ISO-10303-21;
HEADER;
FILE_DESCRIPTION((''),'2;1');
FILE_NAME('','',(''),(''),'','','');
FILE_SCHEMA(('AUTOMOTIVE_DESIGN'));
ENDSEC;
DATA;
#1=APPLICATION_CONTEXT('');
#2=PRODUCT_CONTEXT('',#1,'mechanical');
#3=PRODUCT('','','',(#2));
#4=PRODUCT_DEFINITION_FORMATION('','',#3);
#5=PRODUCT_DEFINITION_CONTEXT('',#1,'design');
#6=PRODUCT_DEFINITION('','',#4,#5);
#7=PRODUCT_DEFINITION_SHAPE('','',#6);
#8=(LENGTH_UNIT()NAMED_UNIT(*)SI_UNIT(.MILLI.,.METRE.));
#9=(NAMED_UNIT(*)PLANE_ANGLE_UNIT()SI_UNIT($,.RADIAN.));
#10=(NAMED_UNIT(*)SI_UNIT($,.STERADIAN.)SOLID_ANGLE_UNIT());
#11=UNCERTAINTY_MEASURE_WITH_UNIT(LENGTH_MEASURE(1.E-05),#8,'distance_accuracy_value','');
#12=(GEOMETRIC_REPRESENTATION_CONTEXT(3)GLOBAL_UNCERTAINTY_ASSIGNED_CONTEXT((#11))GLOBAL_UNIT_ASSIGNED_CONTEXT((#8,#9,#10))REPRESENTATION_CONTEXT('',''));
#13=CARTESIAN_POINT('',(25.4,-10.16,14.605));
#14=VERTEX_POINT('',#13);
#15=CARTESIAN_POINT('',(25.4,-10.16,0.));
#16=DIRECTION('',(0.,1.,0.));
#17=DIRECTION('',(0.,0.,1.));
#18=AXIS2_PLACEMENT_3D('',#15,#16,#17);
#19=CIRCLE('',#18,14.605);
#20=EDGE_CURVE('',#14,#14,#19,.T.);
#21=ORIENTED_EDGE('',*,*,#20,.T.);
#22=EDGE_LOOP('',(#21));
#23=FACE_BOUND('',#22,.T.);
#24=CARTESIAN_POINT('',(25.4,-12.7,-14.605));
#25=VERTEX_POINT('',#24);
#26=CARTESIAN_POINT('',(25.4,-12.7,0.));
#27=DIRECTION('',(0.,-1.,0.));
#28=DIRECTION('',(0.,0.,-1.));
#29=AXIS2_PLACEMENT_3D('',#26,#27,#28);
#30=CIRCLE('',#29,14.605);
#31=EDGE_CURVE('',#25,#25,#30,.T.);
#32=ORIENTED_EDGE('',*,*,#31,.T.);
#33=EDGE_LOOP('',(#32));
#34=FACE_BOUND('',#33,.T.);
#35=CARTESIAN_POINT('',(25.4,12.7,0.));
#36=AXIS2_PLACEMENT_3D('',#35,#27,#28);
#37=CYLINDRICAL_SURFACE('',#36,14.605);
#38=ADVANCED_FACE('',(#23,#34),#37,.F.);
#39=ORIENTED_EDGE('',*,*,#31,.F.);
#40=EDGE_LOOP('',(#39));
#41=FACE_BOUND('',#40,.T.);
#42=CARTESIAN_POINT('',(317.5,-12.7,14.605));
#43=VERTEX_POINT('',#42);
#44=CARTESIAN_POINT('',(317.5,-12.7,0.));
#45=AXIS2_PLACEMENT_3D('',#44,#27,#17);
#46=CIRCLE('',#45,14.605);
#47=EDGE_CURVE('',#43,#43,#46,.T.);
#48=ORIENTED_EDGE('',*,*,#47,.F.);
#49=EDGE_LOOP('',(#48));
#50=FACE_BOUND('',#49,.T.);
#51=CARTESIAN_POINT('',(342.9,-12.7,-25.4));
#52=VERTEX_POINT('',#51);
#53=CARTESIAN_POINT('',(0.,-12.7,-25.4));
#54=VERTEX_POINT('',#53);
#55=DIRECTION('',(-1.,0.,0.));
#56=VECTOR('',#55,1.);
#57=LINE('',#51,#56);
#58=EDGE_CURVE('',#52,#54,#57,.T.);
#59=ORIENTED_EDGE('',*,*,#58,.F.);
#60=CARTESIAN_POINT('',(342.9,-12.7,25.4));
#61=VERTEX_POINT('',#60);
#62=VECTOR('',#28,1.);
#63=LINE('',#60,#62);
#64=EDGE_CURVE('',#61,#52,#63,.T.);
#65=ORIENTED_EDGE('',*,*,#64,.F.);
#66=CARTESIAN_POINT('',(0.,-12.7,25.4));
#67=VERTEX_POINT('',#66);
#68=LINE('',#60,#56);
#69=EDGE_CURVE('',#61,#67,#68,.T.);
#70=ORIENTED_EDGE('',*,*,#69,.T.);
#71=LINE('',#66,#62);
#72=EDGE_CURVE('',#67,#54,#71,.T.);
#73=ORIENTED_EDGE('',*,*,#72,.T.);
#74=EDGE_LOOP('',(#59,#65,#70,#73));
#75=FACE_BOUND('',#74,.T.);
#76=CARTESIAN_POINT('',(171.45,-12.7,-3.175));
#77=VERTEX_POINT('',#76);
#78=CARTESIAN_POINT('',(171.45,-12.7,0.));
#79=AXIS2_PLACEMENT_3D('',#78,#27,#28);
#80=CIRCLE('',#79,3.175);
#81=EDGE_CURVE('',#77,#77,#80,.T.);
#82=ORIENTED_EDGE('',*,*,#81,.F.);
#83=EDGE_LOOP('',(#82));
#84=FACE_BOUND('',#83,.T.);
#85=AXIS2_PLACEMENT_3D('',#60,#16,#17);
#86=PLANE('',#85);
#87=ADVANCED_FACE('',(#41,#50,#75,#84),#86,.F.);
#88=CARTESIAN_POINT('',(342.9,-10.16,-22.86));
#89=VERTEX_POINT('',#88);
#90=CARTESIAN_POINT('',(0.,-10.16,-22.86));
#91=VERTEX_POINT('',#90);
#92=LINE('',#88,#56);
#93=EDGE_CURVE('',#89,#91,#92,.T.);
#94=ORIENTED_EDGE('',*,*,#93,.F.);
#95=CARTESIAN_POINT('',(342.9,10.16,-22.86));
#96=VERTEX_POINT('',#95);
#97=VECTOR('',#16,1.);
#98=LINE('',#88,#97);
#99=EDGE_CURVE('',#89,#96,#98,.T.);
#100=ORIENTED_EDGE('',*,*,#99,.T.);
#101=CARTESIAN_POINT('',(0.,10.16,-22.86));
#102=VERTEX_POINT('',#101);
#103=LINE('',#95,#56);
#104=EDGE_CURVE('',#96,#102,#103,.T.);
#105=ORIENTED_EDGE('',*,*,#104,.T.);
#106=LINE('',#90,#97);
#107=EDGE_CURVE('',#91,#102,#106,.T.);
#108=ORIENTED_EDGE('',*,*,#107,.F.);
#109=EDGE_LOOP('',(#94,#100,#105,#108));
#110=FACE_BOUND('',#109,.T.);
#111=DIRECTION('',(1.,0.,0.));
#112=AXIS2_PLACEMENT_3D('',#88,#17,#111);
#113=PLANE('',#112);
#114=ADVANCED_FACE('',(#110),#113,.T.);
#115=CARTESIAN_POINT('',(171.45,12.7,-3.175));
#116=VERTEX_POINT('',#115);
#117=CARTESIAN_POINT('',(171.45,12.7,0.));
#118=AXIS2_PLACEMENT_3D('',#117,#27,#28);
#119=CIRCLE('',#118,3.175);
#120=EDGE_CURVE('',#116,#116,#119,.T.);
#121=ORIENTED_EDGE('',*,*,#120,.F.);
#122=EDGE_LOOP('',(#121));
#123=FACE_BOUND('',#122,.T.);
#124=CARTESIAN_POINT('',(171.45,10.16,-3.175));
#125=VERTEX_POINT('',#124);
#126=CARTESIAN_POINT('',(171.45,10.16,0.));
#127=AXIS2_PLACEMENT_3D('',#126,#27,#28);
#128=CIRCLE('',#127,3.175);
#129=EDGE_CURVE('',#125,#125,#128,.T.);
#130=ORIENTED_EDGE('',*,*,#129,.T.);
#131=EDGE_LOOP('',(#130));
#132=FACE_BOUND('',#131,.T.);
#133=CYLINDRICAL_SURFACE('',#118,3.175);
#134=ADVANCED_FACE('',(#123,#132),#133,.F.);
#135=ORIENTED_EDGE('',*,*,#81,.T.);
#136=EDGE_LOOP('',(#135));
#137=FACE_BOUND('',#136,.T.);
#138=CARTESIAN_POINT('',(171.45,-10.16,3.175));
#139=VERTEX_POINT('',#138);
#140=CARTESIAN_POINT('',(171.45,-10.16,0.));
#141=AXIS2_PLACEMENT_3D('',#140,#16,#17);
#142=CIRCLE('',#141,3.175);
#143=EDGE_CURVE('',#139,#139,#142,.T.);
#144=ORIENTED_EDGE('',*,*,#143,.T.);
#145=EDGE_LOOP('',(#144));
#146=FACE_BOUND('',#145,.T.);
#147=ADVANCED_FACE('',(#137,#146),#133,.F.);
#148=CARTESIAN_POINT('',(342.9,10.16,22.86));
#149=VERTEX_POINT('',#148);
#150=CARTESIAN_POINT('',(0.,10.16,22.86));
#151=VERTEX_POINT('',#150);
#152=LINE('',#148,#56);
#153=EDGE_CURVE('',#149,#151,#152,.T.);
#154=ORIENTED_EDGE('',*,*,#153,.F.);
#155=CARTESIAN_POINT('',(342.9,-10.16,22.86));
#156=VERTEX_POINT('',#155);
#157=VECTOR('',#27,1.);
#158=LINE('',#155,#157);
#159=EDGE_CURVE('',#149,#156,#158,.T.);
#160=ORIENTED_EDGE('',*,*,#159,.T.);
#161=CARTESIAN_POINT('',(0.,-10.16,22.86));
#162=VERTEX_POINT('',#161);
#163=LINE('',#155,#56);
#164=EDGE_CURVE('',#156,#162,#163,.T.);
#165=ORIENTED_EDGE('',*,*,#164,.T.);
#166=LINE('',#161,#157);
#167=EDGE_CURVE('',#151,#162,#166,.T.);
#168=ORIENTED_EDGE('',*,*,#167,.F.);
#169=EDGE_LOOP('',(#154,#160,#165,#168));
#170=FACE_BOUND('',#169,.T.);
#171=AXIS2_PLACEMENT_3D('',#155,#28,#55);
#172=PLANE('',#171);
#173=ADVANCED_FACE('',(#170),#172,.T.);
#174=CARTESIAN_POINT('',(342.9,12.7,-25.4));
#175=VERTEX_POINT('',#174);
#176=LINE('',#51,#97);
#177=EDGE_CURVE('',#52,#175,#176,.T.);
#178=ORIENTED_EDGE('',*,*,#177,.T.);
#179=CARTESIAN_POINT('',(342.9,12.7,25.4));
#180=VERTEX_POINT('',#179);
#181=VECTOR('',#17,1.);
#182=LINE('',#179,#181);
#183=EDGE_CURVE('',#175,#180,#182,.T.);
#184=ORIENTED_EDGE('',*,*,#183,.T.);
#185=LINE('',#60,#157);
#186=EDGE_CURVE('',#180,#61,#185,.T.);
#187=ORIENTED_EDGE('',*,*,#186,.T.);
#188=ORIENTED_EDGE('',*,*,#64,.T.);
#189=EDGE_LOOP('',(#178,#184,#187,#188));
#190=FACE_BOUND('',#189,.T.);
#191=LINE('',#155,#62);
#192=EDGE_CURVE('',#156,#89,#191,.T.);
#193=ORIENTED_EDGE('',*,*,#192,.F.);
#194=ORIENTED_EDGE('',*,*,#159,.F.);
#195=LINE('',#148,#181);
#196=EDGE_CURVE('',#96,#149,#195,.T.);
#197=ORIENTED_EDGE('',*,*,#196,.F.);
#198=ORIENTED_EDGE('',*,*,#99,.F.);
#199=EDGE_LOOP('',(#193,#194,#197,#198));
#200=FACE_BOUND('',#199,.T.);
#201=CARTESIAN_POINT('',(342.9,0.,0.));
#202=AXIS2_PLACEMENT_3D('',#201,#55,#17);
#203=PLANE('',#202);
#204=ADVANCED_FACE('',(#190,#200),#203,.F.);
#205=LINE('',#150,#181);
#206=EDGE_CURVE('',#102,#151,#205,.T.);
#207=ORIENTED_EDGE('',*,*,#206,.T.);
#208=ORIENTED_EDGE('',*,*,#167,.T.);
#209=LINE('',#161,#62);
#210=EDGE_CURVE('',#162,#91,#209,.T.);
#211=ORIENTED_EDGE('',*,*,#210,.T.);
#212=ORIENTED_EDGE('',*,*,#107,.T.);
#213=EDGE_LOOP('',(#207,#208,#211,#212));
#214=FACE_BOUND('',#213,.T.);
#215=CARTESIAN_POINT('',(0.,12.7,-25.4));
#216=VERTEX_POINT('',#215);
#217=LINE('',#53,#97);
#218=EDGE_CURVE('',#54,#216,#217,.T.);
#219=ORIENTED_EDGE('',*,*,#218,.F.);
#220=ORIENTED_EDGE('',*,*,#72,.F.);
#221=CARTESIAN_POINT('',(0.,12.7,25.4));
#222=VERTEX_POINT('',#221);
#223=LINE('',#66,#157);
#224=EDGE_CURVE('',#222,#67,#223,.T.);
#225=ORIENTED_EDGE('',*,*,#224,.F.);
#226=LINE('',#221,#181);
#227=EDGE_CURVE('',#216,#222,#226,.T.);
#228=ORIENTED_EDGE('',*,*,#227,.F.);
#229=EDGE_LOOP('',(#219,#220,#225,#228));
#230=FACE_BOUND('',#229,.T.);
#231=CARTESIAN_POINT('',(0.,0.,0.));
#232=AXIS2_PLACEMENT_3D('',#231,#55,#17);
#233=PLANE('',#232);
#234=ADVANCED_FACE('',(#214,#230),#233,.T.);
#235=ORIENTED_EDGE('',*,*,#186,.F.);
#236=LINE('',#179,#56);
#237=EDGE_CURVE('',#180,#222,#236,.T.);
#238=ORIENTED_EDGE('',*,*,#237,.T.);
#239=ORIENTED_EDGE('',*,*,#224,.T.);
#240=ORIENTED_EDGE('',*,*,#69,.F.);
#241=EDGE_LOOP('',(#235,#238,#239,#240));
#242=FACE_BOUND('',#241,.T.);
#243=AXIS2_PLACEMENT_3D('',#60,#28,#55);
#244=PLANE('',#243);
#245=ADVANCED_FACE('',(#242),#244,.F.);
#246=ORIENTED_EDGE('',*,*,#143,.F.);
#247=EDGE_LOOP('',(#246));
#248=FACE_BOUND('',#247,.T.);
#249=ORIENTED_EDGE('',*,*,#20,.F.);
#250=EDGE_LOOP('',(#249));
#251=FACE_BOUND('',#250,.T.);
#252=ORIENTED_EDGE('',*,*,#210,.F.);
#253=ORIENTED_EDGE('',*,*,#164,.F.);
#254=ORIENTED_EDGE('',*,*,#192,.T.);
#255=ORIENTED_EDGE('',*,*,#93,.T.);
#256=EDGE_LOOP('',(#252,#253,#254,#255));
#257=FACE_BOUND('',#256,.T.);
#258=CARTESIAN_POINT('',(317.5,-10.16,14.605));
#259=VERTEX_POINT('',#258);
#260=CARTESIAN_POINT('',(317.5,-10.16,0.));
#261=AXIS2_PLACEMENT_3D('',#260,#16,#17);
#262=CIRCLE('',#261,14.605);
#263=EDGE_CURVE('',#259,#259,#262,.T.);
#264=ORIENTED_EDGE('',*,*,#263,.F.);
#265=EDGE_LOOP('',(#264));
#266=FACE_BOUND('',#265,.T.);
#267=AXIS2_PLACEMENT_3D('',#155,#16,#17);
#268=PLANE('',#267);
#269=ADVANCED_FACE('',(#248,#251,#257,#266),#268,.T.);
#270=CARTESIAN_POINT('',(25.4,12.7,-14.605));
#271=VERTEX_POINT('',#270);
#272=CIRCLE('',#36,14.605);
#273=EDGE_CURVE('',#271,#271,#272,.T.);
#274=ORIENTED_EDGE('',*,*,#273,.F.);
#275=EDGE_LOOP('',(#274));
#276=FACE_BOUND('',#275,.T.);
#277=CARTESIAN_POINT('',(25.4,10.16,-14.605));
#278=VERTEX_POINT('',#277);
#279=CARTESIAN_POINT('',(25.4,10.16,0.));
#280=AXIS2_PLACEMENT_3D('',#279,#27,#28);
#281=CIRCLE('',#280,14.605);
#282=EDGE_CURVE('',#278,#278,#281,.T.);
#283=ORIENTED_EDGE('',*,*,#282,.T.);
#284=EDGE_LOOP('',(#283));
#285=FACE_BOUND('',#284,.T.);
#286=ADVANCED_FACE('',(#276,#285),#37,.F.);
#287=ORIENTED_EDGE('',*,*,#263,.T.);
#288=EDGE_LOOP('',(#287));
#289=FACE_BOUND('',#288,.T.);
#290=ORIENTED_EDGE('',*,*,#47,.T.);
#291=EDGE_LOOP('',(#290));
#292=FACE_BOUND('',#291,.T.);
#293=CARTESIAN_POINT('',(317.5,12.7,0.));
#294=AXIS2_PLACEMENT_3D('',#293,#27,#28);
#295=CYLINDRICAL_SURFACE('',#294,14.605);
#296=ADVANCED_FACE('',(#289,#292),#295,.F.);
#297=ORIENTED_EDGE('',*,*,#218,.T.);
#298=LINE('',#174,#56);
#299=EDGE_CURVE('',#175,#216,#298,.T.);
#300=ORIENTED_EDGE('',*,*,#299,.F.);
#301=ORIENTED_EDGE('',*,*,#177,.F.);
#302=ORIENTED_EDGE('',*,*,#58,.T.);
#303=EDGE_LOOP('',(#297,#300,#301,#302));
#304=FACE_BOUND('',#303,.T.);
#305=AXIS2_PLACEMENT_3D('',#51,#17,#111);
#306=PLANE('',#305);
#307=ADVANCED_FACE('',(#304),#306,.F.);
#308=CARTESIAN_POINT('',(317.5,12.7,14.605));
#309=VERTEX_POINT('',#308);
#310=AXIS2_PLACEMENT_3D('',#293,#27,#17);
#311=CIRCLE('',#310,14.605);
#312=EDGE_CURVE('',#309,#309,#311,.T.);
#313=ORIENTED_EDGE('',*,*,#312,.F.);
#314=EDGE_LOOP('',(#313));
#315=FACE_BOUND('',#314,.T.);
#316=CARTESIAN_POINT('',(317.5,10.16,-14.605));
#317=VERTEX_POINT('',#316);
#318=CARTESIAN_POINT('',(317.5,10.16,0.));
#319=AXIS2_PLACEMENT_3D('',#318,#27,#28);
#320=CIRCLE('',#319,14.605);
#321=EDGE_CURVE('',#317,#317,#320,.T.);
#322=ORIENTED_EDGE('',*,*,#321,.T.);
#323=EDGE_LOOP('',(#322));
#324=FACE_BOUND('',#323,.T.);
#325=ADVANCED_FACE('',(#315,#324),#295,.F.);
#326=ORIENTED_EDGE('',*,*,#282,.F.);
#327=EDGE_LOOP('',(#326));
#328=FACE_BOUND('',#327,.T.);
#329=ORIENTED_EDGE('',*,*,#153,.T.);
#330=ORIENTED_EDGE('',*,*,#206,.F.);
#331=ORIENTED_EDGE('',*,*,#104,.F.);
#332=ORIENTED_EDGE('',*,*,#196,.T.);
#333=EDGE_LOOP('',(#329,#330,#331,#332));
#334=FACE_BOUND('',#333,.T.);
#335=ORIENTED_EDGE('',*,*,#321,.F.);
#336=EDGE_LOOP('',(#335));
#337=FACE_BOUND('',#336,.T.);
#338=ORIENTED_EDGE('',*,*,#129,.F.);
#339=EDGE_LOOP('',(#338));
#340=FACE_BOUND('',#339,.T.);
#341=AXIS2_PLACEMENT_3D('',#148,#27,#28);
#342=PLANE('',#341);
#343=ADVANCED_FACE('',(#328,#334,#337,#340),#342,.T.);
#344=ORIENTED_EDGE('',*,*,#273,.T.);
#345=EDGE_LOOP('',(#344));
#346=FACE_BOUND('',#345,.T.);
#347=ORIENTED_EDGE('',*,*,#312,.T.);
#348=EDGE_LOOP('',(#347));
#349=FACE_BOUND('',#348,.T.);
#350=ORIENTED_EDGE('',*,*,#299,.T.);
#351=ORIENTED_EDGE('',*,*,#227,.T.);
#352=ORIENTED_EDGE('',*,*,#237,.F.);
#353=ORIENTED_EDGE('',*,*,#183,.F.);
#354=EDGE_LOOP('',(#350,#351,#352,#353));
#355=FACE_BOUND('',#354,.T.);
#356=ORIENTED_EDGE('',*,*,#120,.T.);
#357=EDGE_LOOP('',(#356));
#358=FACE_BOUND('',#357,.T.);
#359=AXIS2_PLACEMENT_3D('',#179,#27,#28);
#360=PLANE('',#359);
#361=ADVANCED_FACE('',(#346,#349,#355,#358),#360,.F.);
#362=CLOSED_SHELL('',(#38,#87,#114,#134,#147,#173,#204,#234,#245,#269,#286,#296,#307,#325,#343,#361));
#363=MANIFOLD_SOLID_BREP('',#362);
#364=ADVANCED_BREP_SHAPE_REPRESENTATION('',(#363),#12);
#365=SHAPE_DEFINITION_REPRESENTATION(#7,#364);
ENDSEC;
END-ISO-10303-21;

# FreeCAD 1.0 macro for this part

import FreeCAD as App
import Part
import Sketcher
Q = App.Units.Quantity

doc = App.newDocument("Part")
body = doc.addObject("PartDesign::Body", "Body")

# Sketch on YZ plane
sketch1 = body.newObject("Sketcher::SketchObject", "Sketch")
sketch1.AttachmentSupport = (doc.getObject("YZ_Plane"), [""])
sketch1.MapMode = "FlatFace"
sketch1.addGeometry(Part.LineSegment(App.Vector(12.7, 25.4, 0), App.Vector(-12.7, 25.4, 0)), False)
sketch1.addGeometry(Part.LineSegment(App.Vector(-12.7, 25.4, 0), App.Vector(-12.7, -25.4, 0)), False)
sketch1.addGeometry(Part.LineSegment(App.Vector(-12.7, -25.4, 0), App.Vector(12.7, -25.4, 0)), False)
sketch1.addGeometry(Part.LineSegment(App.Vector(12.7, -25.4, 0), App.Vector(12.7, 25.4, 0)), False)
sketch1.addGeometry(Part.LineSegment(App.Vector(-10.16, -22.86, 0), App.Vector(-10.16, 22.86, 0)), False)
sketch1.addGeometry(Part.LineSegment(App.Vector(-10.16, 22.86, 0), App.Vector(10.16, 22.86, 0)), False)
sketch1.addGeometry(Part.LineSegment(App.Vector(10.16, 22.86, 0), App.Vector(10.16, -22.86, 0)), False)
sketch1.addGeometry(Part.LineSegment(App.Vector(10.16, -22.86, 0), App.Vector(-10.16, -22.86, 0)), False)
sketch1.addConstraint(Sketcher.Constraint("Coincident", 0, 2, 1, 1))
sketch1.addConstraint(Sketcher.Constraint("Coincident", 1, 2, 2, 1))
sketch1.addConstraint(Sketcher.Constraint("Coincident", 2, 2, 3, 1))
sketch1.addConstraint(Sketcher.Constraint("Coincident", 3, 2, 0, 1))
sketch1.addConstraint(Sketcher.Constraint("Coincident", 4, 2, 5, 1))
sketch1.addConstraint(Sketcher.Constraint("Coincident", 5, 2, 6, 1))
sketch1.addConstraint(Sketcher.Constraint("Coincident", 6, 2, 7, 1))
sketch1.addConstraint(Sketcher.Constraint("Coincident", 7, 2, 4, 1))
sketch1.addConstraint(Sketcher.Constraint("Horizontal", 0))
sketch1.addConstraint(Sketcher.Constraint("Vertical", 1))
sketch1.addConstraint(Sketcher.Constraint("Horizontal", 2))
sketch1.addConstraint(Sketcher.Constraint("Vertical", 3))
sketch1.addConstraint(Sketcher.Constraint("Vertical", 4))
sketch1.addConstraint(Sketcher.Constraint("Horizontal", 5))
sketch1.addConstraint(Sketcher.Constraint("Vertical", 6))
sketch1.addConstraint(Sketcher.Constraint("Horizontal", 7))
sketch1.addConstraint(Sketcher.Constraint("Symmetric", 0, 2, 2, 2, -1, 1))
sketch1.addConstraint(Sketcher.Constraint("Symmetric", 4, 2, 6, 2, -1, 1))
sketch1.addConstraint(Sketcher.Constraint("DistanceX", 0, 2, 0, 1, Q("1 in")))
sketch1.addConstraint(Sketcher.Constraint("DistanceY", 1, 2, 1, 1, Q("2 in")))
sketch1.addConstraint(Sketcher.Constraint("DistanceX", 5, 1, 5, 2, Q("0.8 in")))
sketch1.addConstraint(Sketcher.Constraint("DistanceY", 4, 1, 4, 2, Q("1.8 in")))
pad1 = body.newObject("PartDesign::Pad", "Pad")
pad1.Profile = sketch1
pad1.Length = Q("13.5 in")

# Sketch on XZ plane
sketch2 = body.newObject("Sketcher::SketchObject", "Sketch001")
sketch2.AttachmentSupport = (doc.getObject("XZ_Plane"), [""])
sketch2.MapMode = "FlatFace"
sketch2.AttachmentOffset = App.Placement(App.Vector(0, 0, 0.5 * 25.4), App.Rotation())
sketch2.addGeometry(Part.Circle(App.Vector(25.4, 0, 0), App.Vector(0, 0, 1), 14.605), False)
sketch2.addGeometry(Part.Circle(App.Vector(317.5, 0, 0), App.Vector(0, 0, 1), 14.605), False)
sketch2.addConstraint(Sketcher.Constraint("Equal", 0, 1))
sketch2.addConstraint(Sketcher.Constraint("PointOnObject", 0, 3, -1))
sketch2.addConstraint(Sketcher.Constraint("PointOnObject", 1, 3, -1))
sketch2.addConstraint(Sketcher.Constraint("Diameter", 0, Q("1.15 in")))
sketch2.addConstraint(Sketcher.Constraint("DistanceX", -1, 1, 0, 3, Q("1 in")))
sketch2.addConstraint(Sketcher.Constraint("DistanceX", -1, 1, 1, 3, Q("12.5 in")))
pocket1 = body.newObject("PartDesign::Pocket", "Pocket")
pocket1.Profile = sketch2
pocket1.Type = "ThroughAll"

# Sketch on XZ plane
sketch3 = body.newObject("Sketcher::SketchObject", "Sketch002")
sketch3.AttachmentSupport = (doc.getObject("XZ_Plane"), [""])
sketch3.MapMode = "FlatFace"
sketch3.AttachmentOffset = App.Placement(App.Vector(0, 0, 0.5 * 25.4), App.Rotation())
sketch3.addGeometry(Part.Circle(App.Vector(171.45, 0, 0), App.Vector(0, 0, 1), 3.175), False)
sketch3.addConstraint(Sketcher.Constraint("PointOnObject", 0, 3, -1))
sketch3.addConstraint(Sketcher.Constraint("Diameter", 0, Q("0.25 in")))
sketch3.addConstraint(Sketcher.Constraint("DistanceX", -1, 1, 0, 3, Q("6.75 in")))
pocket2 = body.newObject("PartDesign::Pocket", "Pocket001")
pocket2.Profile = sketch3
pocket2.Type = "ThroughAll"

doc.recompute()
